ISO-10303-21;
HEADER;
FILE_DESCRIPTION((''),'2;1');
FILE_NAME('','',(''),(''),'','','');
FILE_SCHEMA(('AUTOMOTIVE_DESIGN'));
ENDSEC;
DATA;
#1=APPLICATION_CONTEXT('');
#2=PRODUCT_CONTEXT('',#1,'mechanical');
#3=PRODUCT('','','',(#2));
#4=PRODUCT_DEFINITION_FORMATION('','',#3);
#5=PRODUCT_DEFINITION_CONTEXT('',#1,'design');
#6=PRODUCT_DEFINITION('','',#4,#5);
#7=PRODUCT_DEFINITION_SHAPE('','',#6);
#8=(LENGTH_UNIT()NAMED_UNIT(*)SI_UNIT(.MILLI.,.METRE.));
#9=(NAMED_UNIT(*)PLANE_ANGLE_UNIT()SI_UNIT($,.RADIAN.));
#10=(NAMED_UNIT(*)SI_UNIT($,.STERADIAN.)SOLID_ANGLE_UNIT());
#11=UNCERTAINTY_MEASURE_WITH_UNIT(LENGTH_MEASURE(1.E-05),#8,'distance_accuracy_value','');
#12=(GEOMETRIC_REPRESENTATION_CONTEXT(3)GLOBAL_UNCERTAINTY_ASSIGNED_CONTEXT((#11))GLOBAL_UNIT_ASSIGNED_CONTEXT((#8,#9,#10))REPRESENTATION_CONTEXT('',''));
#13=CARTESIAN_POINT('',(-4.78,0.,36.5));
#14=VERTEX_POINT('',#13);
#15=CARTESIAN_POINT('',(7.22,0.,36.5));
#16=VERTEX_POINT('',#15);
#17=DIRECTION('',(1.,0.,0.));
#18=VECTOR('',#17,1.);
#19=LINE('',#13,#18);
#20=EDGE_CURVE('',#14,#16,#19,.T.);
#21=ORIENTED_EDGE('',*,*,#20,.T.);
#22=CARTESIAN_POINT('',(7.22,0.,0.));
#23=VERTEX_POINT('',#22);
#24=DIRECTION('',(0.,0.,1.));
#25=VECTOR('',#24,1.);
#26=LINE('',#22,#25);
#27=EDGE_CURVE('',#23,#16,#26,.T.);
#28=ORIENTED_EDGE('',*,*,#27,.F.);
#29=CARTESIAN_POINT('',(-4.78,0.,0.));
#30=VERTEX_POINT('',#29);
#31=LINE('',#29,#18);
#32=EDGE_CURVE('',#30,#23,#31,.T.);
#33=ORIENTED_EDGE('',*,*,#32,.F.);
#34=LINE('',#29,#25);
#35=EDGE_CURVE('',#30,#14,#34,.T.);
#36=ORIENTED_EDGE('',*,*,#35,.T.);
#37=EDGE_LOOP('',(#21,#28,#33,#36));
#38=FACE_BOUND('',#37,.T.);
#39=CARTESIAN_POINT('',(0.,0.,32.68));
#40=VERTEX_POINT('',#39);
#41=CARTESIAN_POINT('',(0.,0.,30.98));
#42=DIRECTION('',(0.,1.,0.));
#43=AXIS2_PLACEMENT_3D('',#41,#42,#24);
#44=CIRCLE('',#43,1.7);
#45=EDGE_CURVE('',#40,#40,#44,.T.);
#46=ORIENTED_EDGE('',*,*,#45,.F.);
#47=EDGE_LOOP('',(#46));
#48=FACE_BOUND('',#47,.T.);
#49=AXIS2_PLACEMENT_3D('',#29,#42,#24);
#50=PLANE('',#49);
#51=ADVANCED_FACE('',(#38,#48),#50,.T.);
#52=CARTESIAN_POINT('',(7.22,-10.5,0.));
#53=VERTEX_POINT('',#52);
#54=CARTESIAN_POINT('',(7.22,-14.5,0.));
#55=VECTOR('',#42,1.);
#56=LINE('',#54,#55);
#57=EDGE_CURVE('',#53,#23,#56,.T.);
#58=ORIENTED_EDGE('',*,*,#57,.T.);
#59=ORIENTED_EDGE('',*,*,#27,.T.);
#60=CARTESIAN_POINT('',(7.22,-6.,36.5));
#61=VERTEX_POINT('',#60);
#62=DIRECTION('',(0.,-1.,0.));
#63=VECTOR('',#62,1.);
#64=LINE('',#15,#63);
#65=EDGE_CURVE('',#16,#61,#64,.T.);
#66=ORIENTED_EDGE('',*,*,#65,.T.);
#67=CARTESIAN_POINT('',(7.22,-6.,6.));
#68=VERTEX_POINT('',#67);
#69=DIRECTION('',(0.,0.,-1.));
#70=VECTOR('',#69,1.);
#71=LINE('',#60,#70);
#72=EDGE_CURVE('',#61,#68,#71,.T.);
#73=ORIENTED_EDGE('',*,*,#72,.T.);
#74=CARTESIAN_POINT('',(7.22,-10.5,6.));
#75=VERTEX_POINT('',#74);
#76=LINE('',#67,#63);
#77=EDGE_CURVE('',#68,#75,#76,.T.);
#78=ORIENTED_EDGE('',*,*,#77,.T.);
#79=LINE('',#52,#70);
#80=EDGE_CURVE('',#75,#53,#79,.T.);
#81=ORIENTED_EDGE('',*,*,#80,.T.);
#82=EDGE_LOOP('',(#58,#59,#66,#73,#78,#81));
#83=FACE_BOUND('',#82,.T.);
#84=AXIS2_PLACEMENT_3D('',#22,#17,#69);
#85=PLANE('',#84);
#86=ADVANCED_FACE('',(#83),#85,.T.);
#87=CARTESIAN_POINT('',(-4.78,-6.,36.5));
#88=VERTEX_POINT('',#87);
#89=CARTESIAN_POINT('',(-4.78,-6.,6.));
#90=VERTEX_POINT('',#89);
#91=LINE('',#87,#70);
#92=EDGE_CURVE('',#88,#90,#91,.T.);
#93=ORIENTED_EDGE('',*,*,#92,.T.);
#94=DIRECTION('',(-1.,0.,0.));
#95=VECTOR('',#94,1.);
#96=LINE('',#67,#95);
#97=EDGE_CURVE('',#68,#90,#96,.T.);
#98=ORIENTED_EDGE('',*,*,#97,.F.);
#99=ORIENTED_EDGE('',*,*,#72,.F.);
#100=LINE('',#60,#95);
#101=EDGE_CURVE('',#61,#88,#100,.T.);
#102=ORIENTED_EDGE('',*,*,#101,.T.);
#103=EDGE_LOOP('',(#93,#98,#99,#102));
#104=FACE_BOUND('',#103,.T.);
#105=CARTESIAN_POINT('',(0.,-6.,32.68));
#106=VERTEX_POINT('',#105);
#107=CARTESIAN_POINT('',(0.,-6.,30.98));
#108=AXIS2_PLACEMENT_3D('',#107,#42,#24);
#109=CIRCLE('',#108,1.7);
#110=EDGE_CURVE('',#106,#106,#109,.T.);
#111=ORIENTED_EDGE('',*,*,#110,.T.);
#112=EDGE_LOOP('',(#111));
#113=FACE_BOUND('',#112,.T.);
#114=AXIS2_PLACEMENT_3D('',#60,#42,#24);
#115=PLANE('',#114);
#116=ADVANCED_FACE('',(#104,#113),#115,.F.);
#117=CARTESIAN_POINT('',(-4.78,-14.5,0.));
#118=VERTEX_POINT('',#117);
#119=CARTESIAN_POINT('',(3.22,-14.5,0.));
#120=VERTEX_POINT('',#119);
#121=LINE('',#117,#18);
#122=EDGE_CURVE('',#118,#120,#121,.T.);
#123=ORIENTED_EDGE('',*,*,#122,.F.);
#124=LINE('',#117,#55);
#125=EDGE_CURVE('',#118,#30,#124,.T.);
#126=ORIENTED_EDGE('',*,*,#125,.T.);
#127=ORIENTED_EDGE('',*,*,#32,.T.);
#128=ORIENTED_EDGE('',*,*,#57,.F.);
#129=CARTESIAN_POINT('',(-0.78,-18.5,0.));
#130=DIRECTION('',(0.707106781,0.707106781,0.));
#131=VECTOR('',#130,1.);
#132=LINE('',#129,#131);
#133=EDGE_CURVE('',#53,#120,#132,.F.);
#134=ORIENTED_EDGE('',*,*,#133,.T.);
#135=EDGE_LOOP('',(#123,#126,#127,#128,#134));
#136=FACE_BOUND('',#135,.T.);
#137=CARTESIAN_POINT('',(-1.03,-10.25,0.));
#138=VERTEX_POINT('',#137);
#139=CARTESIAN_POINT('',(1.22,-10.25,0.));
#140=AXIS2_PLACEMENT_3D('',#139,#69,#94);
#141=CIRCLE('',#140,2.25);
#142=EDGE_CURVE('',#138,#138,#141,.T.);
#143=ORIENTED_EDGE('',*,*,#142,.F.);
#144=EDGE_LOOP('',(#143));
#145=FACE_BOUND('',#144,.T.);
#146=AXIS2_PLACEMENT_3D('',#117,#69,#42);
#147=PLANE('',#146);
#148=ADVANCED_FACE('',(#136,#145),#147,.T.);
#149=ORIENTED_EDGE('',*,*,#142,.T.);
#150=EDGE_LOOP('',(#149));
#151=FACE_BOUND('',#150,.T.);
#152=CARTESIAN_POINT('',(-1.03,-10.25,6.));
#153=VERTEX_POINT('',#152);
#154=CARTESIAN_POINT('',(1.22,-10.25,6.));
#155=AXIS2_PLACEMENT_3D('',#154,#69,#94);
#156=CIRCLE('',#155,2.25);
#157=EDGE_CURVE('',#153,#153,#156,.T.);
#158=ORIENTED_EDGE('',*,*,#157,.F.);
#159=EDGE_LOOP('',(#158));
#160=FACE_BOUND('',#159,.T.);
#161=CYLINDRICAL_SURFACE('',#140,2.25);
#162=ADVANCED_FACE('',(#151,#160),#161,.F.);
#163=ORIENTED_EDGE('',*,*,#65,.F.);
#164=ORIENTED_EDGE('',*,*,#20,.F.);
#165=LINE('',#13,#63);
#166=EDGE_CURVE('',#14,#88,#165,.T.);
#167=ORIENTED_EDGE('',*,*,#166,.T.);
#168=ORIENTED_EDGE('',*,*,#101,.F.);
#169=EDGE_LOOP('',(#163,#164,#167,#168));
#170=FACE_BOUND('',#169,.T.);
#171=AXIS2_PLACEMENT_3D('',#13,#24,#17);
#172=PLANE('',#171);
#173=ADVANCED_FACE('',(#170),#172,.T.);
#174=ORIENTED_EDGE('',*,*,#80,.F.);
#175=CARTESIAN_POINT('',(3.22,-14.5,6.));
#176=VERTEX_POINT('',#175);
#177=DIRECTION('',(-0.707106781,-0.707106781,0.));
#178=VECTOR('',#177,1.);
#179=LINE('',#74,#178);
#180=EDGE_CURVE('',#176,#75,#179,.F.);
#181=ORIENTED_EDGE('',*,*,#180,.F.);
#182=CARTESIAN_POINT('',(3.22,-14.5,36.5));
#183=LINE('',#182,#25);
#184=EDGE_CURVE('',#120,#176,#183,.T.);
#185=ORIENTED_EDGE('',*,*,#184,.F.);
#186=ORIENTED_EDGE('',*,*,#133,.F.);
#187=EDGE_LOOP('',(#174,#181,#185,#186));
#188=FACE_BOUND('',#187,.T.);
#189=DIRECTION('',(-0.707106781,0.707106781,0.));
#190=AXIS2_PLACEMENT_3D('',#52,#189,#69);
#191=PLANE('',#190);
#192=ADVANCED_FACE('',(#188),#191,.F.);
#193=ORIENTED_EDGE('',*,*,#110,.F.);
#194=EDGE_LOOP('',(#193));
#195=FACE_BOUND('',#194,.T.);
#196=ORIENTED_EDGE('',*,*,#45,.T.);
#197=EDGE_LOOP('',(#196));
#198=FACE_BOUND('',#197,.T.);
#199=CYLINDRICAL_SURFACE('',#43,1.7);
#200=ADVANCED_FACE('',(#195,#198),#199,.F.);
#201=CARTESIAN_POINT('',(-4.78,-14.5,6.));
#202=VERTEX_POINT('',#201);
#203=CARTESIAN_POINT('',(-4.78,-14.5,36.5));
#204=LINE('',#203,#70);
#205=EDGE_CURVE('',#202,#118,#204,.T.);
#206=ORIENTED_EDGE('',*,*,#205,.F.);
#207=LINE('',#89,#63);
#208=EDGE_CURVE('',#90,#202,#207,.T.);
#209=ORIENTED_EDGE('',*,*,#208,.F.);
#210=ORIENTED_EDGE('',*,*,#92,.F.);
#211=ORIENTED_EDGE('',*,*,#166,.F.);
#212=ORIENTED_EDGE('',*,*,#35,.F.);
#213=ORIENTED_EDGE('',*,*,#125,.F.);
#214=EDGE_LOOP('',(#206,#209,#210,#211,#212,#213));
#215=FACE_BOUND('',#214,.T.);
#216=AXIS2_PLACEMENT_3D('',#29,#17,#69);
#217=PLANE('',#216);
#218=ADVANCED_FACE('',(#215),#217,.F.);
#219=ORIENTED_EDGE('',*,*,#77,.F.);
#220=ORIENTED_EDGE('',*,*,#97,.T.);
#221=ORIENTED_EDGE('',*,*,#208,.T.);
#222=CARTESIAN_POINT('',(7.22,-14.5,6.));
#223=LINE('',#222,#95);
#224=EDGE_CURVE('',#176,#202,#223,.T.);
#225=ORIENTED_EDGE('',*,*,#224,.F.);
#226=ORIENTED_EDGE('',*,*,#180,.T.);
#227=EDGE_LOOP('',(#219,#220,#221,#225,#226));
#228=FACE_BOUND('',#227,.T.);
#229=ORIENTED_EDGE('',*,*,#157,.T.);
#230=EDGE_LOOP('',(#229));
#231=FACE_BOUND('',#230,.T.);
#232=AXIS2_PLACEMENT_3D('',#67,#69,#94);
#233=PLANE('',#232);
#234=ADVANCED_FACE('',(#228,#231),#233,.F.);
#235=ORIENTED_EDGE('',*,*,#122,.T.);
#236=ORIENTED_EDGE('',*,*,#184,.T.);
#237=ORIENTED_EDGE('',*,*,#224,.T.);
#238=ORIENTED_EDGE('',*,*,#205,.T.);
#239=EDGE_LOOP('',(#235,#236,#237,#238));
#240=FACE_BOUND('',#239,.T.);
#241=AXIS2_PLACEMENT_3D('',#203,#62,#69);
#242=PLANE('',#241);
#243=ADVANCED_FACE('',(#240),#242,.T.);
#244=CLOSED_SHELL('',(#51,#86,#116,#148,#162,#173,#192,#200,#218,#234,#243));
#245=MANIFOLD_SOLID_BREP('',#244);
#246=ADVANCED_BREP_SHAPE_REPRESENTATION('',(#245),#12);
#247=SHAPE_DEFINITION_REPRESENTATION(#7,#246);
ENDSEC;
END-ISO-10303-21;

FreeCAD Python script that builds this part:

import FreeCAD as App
import Part
import Sketcher


def edges_at(feature, points):
    """Names of the edges that pass closest to the given points."""
    edges = feature.Shape.Edges
    near = lambda p: min(range(len(edges)), key=lambda i: edges[i].distToShape(Part.Vertex(*p))[0])
    return sorted({f"Edge{near(p) + 1}" for p in points})


def add_polygon(sketch, points):
    """Adds a closed chain of lines whose ends are joined by coincident constraints."""
    first, n = sketch.GeometryCount, len(points)
    for a, b in zip(points, points[1:] + points[:1]):
        sketch.addGeometry(Part.LineSegment(App.Vector(*a, 0), App.Vector(*b, 0)), False)
    for i in range(n):
        sketch.addConstraint(Sketcher.Constraint("Coincident", first + i, 2, first + (i + 1) % n, 1))

doc = App.newDocument("Part")
params = doc.addObject("Spreadsheet::Sheet", "Params")
for row, (alias, value) in enumerate([
    ("sketch1_width", "14.5 mm"),
    ("sketch1_height", "36.5 mm"),
    ("pad1_length", "12 mm"),
    ("sketch2_width", "8.5 mm"),
    ("sketch2_height", "30.5 mm"),
    ("sketch3_diameter", "4.5 mm"),
    ("hole_diameter", "4.5 mm"),
    ("hole_depth", "36.5 mm"),
    ("sketch4_diameter", "3.4 mm"),
    ("hole2_diameter", "3.4 mm"),
    ("hole2_depth", "14.5 mm"),
    ("chamfer_size", "4 mm"),
], start=1):
    params.set(f"A{row}", alias)
    params.set(f"B{row}", "=" + value)
    params.setAlias(f"B{row}", alias)

body = doc.addObject("PartDesign::Body", "Body")

# Sketch on YZ plane
sketch1 = body.newObject("Sketcher::SketchObject", "Sketch")
sketch1.AttachmentSupport = (doc.getObject("YZ_Plane"), [""])
sketch1.MapMode = "FlatFace"
sketch1.AttachmentOffset = App.Placement(App.Vector(0, 0, 7.22), App.Rotation())
add_polygon(sketch1, [(0, 36), (-14, 36), (-14, 0), (0, 0)])  # lines 0-3
sketch1.addConstraint([
    Sketcher.Constraint("Horizontal", 0),
    Sketcher.Constraint("Vertical", 1),
    Sketcher.Constraint("Horizontal", 2),
    Sketcher.Constraint("Vertical", 3),
    Sketcher.Constraint("Coincident", 2, 2, -1, 1),
    Sketcher.Constraint("DistanceX", 0, 2, 0, 1, 14.5),
    Sketcher.Constraint("DistanceY", 1, 2, 1, 1, 36.5),
])
sketch1.setExpression("Constraints[9]", "Params.sketch1_width")
sketch1.setExpression("Constraints[10]", "Params.sketch1_height")
pad1 = body.newObject("PartDesign::Pad", "Pad")
pad1.Profile = sketch1
pad1.setExpression("Length", "Params.pad1_length")
pad1.Reversed = True

# Sketch on YZ plane
sketch2 = body.newObject("Sketcher::SketchObject", "Sketch001")
sketch2.AttachmentSupport = (doc.getObject("YZ_Plane"), [""])
sketch2.MapMode = "FlatFace"
sketch2.AttachmentOffset = App.Placement(App.Vector(0, 0, -4.78), App.Rotation())
add_polygon(sketch2, [(-6, 6), (-14, 6), (-14, 36), (-6, 36)])  # lines 0-3
sketch2.addConstraint([
    Sketcher.Constraint("Horizontal", 0),
    Sketcher.Constraint("Vertical", 1),
    Sketcher.Constraint("Horizontal", 2),
    Sketcher.Constraint("Vertical", 3),
    Sketcher.Constraint("DistanceX", 0, 2, 0, 1, 8.5),
    Sketcher.Constraint("DistanceY", 1, 1, 1, 2, 30.5),
    Sketcher.Constraint("DistanceY", -1, 1, 0, 2, 6.0),
    Sketcher.Constraint("DistanceX", 2, 2, -1, 1, 6.0),
])
sketch2.setExpression("Constraints[8]", "Params.sketch2_width")
sketch2.setExpression("Constraints[9]", "Params.sketch2_height")
pocket1 = body.newObject("PartDesign::Pocket", "Pocket")
pocket1.Profile = sketch2
pocket1.Type = "ThroughAll"
pocket1.Reversed = True

# Sketch on XY plane
sketch3 = body.newObject("Sketcher::SketchObject", "Sketch002")
sketch3.AttachmentSupport = (doc.getObject("XY_Plane"), [""])
sketch3.MapMode = "FlatFace"
sketch3.addGeometry(Part.Circle(App.Vector(1.2, -10.2, 0), App.Vector(0, 0, 1), 2.2), False)
sketch3.addConstraint([
    Sketcher.Constraint("Diameter", 0, 4.5),
    Sketcher.Constraint("DistanceX", -1, 1, 0, 3, 1.22),
    Sketcher.Constraint("DistanceY", 0, 3, -1, 1, 10.25),
])
sketch3.setExpression("Constraints[0]", "Params.sketch3_diameter")
doc.recompute()
hole = body.newObject("PartDesign::Hole", "Hole")
hole.Profile = sketch3
hole.ThreadType = "None"
hole.setExpression("Diameter", "Params.hole_diameter")
hole.DepthType = "Dimension"
hole.setExpression("Depth", "Params.hole_depth")
hole.DrillPoint = "Flat"
hole.Reversed = True

# Sketch on XZ plane
sketch4 = body.newObject("Sketcher::SketchObject", "Sketch003")
sketch4.AttachmentSupport = (doc.getObject("XZ_Plane"), [""])
sketch4.MapMode = "FlatFace"
sketch4.addGeometry(Part.Circle(App.Vector(0, 31, 0), App.Vector(0, 0, 1), 1.7), False)
sketch4.addConstraint([
    Sketcher.Constraint("PointOnObject", 0, 3, -2),
    Sketcher.Constraint("Diameter", 0, 3.4),
    Sketcher.Constraint("DistanceY", -1, 1, 0, 3, 30.98),
])
sketch4.setExpression("Constraints[1]", "Params.sketch4_diameter")
doc.recompute()
hole2 = body.newObject("PartDesign::Hole", "Hole001")
hole2.Profile = sketch4
hole2.ThreadType = "None"
hole2.setExpression("Diameter", "Params.hole2_diameter")
hole2.DepthType = "Dimension"
hole2.setExpression("Depth", "Params.hole2_depth")
hole2.DrillPoint = "Flat"
hole2.Reversed = True
doc.recompute()

chamfer = body.newObject("PartDesign::Chamfer", "Chamfer")
chamfer.Base = (hole2, edges_at(hole2, [(7.22, -14.5, 3)]))
chamfer.setExpression("Size", "Params.chamfer_size")

doc.recompute()
